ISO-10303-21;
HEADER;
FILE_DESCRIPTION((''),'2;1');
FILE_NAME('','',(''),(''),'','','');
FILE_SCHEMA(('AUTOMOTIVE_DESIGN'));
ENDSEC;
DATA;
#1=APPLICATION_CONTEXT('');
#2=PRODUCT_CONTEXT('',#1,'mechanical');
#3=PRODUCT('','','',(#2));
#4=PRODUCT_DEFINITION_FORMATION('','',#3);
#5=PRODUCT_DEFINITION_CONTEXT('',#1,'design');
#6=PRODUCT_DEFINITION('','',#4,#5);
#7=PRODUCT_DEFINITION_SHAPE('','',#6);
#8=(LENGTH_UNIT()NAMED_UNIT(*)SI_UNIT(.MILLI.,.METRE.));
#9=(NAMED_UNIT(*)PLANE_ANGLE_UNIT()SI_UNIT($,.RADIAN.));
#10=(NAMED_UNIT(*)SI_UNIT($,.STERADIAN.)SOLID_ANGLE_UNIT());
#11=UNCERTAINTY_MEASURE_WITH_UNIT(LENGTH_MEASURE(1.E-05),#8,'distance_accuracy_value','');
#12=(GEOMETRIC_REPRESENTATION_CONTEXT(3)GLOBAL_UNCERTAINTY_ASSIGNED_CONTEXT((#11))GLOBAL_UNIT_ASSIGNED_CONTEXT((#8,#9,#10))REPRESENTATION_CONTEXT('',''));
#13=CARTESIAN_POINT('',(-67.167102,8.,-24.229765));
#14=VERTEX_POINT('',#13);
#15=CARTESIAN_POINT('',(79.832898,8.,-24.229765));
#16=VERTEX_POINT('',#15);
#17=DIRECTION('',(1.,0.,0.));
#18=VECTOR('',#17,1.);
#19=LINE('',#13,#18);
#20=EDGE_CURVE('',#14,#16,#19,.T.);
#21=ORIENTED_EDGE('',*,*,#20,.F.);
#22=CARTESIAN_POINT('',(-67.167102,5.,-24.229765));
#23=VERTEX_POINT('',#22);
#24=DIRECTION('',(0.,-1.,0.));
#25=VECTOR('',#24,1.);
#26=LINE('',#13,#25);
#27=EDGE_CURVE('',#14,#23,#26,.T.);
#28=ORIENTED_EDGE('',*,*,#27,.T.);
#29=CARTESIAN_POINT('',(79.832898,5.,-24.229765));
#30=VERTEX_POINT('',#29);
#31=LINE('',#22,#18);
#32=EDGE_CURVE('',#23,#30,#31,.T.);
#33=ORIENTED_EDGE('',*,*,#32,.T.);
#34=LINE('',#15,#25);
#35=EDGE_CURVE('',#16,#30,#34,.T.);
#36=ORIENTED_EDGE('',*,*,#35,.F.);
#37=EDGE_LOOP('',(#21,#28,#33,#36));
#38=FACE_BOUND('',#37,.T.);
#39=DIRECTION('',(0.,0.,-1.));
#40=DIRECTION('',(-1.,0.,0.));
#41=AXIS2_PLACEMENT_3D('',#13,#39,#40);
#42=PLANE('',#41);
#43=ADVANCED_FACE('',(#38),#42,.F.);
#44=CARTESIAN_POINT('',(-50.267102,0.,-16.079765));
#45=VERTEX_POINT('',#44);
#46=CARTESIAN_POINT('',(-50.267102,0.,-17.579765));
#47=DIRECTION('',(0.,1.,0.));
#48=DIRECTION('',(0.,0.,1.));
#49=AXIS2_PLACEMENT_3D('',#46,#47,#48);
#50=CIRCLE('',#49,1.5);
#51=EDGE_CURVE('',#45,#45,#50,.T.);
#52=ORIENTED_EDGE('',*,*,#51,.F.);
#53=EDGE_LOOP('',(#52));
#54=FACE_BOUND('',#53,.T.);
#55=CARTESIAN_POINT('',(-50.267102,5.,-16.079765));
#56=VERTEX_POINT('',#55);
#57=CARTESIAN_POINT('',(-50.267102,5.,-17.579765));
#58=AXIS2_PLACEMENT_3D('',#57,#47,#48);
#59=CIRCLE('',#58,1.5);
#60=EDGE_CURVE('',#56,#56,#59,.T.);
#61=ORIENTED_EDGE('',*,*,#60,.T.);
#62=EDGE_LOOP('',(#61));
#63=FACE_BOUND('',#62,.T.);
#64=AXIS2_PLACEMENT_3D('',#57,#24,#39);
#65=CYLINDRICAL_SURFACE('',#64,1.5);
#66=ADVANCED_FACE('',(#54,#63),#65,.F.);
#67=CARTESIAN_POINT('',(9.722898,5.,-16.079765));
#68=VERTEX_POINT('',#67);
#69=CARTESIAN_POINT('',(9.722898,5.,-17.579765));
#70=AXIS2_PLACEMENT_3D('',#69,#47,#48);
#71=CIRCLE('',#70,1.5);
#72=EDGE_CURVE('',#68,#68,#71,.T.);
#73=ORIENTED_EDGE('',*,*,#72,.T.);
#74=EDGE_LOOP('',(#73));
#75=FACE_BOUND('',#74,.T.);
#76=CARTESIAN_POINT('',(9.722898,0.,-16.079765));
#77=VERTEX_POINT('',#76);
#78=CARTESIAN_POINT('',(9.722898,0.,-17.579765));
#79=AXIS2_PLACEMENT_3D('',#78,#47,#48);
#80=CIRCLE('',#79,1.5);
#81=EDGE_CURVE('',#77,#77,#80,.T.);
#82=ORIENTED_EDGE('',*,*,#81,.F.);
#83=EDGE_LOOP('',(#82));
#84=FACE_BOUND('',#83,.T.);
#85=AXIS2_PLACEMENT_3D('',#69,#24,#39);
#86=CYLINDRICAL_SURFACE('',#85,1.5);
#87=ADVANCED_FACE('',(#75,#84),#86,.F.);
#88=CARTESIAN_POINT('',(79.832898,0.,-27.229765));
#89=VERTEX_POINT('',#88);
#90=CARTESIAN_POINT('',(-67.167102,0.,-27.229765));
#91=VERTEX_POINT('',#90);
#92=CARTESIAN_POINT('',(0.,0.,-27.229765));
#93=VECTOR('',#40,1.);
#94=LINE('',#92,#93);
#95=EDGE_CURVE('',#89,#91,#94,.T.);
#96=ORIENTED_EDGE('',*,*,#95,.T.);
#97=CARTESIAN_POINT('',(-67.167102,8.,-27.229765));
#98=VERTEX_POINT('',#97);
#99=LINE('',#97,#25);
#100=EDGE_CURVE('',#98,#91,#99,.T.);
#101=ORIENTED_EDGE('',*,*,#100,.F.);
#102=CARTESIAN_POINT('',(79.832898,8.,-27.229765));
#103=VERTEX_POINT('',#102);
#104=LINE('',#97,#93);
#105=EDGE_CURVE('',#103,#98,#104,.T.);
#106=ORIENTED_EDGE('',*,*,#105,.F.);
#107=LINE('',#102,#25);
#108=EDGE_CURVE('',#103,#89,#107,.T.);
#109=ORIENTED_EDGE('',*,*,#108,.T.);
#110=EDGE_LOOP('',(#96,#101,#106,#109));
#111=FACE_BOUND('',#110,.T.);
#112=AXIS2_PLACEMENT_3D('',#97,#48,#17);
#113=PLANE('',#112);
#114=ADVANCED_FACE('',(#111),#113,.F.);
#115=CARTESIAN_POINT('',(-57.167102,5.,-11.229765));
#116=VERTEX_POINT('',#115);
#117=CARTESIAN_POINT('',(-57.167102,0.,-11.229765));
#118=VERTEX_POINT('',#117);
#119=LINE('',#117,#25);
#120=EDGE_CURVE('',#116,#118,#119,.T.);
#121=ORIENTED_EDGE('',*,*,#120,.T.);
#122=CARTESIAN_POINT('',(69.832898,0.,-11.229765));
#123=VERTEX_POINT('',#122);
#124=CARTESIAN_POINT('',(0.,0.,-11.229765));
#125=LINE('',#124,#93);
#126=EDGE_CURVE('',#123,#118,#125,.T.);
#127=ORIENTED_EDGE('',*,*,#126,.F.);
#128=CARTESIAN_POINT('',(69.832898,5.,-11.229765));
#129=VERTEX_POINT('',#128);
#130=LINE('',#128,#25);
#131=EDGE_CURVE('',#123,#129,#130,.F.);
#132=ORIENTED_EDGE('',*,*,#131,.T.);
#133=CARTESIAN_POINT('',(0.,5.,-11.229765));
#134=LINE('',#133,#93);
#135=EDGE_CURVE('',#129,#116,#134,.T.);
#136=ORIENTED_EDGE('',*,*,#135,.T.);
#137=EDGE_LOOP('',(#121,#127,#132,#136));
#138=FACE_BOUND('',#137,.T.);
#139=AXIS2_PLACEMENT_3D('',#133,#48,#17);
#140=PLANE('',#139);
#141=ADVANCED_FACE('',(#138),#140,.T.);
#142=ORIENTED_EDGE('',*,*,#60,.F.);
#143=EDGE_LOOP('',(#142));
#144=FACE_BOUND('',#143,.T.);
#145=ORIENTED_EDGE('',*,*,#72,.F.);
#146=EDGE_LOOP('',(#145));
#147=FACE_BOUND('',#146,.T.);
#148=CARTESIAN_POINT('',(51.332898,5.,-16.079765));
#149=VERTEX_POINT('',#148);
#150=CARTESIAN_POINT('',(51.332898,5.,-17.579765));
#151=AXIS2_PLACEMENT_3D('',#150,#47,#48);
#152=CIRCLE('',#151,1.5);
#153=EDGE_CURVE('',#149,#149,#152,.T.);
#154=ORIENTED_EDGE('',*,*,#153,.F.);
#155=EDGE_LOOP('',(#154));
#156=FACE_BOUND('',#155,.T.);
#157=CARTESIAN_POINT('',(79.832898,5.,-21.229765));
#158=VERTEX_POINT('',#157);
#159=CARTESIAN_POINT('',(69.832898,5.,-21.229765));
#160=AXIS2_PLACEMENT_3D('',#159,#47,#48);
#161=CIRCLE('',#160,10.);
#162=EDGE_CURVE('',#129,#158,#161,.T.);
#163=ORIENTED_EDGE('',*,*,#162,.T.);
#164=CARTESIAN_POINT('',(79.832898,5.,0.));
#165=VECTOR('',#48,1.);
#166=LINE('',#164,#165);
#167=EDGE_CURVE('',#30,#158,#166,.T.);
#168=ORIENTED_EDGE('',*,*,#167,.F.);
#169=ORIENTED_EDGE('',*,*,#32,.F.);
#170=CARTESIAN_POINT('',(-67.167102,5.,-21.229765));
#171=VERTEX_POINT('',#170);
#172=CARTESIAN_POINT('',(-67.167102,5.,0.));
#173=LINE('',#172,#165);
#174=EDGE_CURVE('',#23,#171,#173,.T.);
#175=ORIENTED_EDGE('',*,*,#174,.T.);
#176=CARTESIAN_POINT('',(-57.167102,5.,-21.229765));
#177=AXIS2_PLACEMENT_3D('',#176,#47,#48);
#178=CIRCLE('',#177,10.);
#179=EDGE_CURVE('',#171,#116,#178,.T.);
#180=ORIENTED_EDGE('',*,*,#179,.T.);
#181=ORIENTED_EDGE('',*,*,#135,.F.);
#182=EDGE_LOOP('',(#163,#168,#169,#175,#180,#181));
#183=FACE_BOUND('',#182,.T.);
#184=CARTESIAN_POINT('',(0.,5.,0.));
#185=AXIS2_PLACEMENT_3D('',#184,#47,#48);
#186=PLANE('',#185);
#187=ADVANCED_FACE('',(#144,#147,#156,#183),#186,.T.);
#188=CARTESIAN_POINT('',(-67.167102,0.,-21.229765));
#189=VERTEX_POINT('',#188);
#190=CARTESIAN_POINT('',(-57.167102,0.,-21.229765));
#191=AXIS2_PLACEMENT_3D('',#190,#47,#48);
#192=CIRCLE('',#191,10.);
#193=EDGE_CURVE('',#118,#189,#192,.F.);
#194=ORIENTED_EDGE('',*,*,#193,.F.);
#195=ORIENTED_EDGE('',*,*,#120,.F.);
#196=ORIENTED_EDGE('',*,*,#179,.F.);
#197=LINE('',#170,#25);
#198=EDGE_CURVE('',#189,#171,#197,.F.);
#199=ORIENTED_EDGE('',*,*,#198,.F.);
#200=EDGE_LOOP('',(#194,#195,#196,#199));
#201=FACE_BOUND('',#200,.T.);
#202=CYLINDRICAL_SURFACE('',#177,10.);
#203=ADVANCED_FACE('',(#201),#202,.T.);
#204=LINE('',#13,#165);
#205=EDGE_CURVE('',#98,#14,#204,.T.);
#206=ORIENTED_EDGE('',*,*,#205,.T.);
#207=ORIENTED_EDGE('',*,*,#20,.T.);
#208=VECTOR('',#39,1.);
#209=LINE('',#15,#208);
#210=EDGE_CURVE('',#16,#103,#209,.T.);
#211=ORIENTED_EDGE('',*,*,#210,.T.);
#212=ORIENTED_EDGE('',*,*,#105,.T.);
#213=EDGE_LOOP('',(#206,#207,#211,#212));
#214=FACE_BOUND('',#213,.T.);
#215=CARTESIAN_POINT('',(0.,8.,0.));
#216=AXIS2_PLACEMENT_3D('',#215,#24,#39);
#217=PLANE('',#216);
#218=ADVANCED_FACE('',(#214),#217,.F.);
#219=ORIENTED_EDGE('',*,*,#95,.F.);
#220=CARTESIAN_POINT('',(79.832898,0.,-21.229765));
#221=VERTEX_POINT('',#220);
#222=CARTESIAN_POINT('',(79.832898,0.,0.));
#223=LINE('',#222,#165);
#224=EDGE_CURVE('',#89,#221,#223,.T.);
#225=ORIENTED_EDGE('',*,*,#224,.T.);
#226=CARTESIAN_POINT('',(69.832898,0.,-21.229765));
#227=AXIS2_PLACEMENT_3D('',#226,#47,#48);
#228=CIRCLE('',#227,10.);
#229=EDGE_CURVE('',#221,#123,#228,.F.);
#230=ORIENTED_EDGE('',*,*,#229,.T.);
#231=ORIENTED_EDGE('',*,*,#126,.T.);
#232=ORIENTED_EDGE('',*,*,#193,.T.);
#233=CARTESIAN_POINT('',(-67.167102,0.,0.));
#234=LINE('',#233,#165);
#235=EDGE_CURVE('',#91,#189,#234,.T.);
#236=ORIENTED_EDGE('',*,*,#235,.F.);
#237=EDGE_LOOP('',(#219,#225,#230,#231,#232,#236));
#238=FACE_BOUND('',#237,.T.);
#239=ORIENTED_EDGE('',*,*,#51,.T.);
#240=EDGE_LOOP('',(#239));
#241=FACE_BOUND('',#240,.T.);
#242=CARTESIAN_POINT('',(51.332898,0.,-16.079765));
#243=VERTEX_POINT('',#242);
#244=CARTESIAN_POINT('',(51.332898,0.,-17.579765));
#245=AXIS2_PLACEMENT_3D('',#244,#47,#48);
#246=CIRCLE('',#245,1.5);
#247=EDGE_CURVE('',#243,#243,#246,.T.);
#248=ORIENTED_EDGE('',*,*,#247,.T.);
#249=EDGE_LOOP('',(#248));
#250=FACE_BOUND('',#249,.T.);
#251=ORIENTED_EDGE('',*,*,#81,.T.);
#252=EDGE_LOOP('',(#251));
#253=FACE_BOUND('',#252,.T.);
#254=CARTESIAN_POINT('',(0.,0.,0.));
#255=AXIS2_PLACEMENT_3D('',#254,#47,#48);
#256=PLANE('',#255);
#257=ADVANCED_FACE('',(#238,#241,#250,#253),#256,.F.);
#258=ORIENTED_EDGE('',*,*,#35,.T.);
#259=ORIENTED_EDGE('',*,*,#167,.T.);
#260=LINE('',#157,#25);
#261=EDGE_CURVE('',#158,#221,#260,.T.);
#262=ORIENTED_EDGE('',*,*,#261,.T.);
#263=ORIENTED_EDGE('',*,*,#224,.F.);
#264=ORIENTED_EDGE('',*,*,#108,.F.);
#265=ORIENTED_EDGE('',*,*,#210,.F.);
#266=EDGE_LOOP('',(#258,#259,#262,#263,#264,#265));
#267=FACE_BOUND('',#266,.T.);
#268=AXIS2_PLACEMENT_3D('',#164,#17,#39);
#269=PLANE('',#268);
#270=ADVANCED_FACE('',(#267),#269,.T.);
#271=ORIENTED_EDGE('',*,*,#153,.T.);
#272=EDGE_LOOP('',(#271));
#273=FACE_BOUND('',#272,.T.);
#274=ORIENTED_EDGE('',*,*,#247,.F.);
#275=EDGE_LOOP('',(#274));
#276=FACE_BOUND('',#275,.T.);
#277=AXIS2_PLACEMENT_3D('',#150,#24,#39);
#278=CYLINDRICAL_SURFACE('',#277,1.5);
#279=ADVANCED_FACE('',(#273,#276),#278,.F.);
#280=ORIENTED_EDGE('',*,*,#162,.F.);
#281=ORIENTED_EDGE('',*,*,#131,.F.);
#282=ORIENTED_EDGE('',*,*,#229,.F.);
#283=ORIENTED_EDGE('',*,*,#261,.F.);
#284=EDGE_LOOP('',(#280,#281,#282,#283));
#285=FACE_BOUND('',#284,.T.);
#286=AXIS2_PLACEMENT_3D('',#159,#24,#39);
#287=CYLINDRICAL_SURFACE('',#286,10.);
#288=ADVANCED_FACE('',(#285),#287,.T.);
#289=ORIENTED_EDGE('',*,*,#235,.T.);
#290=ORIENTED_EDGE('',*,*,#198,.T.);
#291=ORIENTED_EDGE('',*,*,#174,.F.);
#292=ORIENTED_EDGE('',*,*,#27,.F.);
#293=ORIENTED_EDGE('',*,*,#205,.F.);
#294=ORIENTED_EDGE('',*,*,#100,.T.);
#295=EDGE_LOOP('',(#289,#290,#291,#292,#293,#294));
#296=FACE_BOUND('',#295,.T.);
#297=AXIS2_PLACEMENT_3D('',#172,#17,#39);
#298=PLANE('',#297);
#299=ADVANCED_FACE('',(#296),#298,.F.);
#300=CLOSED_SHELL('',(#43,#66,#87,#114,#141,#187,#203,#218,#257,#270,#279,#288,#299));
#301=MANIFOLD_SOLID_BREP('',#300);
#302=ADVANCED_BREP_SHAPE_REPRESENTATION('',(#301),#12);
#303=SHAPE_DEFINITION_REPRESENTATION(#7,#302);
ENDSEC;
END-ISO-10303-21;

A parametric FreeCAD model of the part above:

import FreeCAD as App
import Part
import Sketcher

V = App.Vector
Q = App.Units.Quantity


def edges_at(feature, points):
    """Names of the edges that pass closest to the given points."""
    edges = feature.Shape.Edges
    near = lambda p: min(range(len(edges)), key=lambda i: edges[i].distToShape(Part.Vertex(*p))[0])
    return sorted({f"Edge{near(p) + 1}" for p in points})


def add_polygon(sketch, points):
    """Adds a closed chain of lines whose ends are joined by coincident constraints."""
    first, n = sketch.GeometryCount, len(points)
    for a, b in zip(points, points[1:] + points[:1]):
        sketch.addGeometry(Part.LineSegment(App.Vector(*a, 0), App.Vector(*b, 0)), False)
    for i in range(n):
        sketch.addConstraint(Sketcher.Constraint("Coincident", first + i, 2, first + (i + 1) % n, 1))

doc = App.newDocument("Part")
body = doc.addObject("PartDesign::Body", "Body")

sketch1 = body.newObject("Sketcher::SketchObject", "Sketch")
sketch1.AttachmentSupport = (doc.getObject("XZ_Plane"), [""])
sketch1.MapMode = "FlatFace"
add_polygon(sketch1, [(-67.167102, -11.229765), (79.832898, -11.229765), (79.832898, -37.229765), (-67.167102, -37.229765)])
sketch1.addGeometry(Part.Circle(V(51.332898, -17.579765, 0), V(0, 0, 1), 1.5), False)
sketch1.addGeometry(Part.Circle(V(9.722898, -17.579765, 0), V(0, 0, 1), 1.5), False)
sketch1.addGeometry(Part.Circle(V(-50.267102, -17.579765, 0), V(0, 0, 1), 1.5), False)
sketch1.addConstraint(Sketcher.Constraint("Horizontal", 0))
sketch1.addConstraint(Sketcher.Constraint("Vertical", 1))
sketch1.addConstraint(Sketcher.Constraint("Horizontal", 2))
sketch1.addConstraint(Sketcher.Constraint("Vertical", 3))
sketch1.addConstraint(Sketcher.Constraint("Equal", 4, 5))
sketch1.addConstraint(Sketcher.Constraint("Equal", 5, 6))
sketch1.addConstraint(Sketcher.Constraint("Horizontal", 4, 3, 5, 3))
sketch1.addConstraint(Sketcher.Constraint("Horizontal", 5, 3, 6, 3))
sketch1.addConstraint(Sketcher.Constraint("Diameter", 4, Q("3 mm")))
sketch1.addConstraint(Sketcher.Constraint("DistanceX", 0, 1, 0, 2, Q("147 mm")))
sketch1.addConstraint(Sketcher.Constraint("DistanceY", 1, 2, 1, 1, Q("26 mm")))
sketch1.addConstraint(Sketcher.Constraint("DistanceX", 6, 3, 4, 3, Q("101.6 mm")))
sketch1.addConstraint(Sketcher.Constraint("DistanceX", 4, 3, 0, 2, Q("28.5 mm")))
sketch1.addConstraint(Sketcher.Constraint("DistanceX", 5, 3, 4, 3, Q("41.61 mm")))
sketch1.addConstraint(Sketcher.Constraint("DistanceY", 4, 3, 0, 2, Q("6.35 mm")))
sketch1.addConstraint(Sketcher.Constraint("DistanceX", -1, 1, 4, 3, Q("51.332898 mm")))
sketch1.addConstraint(Sketcher.Constraint("DistanceY", 4, 3, -1, 1, Q("17.579765 mm")))
pad1 = body.newObject("PartDesign::Pad", "Pad")
pad1.Profile = sketch1
pad1.Length = 5
pad1.Reversed = True

sketch2 = body.newObject("Sketcher::SketchObject", "Sketch001")
sketch2.AttachmentSupport = (doc.getObject("XZ_Plane"), [""])
sketch2.MapMode = "FlatFace"
sketch2.AttachmentOffset = App.Placement(V(0, 0, -5), App.Rotation())
add_polygon(sketch2, [(-67.167102, -27.229765), (-67.167102, -24.229765), (79.832898, -24.229765), (79.832898, -27.229765)])
sketch2.addConstraint(Sketcher.Constraint("Vertical", 0))
sketch2.addConstraint(Sketcher.Constraint("Horizontal", 1))
sketch2.addConstraint(Sketcher.Constraint("Vertical", 2))
sketch2.addConstraint(Sketcher.Constraint("Horizontal", 3))
sketch2.addConstraint(Sketcher.Constraint("DistanceX", 1, 1, 1, 2, Q("147 mm")))
sketch2.addConstraint(Sketcher.Constraint("DistanceY", 0, 1, 0, 2, Q("3 mm")))
sketch2.addConstraint(Sketcher.Constraint("DistanceX", 0, 2, -1, 1, Q("67.167102 mm")))
sketch2.addConstraint(Sketcher.Constraint("DistanceY", 0, 2, -1, 1, Q("24.229765 mm")))
pad2 = body.newObject("PartDesign::Pad", "Pad001")
pad2.Profile = sketch2
pad2.Length = 3
pad2.Reversed = True
doc.recompute()

fillet = body.newObject("PartDesign::Fillet", "Fillet")
fillet.Base = (pad2, edges_at(pad2, [(-67.167, 2.5, -37.23), (-67.167, 2.5, -11.23)]))
fillet.Radius = 10
doc.recompute()

fillet2 = body.newObject("PartDesign::Fillet", "Fillet001")
fillet2.Base = (fillet, edges_at(fillet, [(79.833, 2.5, -37.23), (79.833, 2.5, -11.23)]))
fillet2.Radius = 10

sketch3 = body.newObject("Sketcher::SketchObject", "Sketch002")
sketch3.AttachmentSupport = (doc.getObject("XY_Plane"), [""])
sketch3.MapMode = "FlatFace"
sketch3.AttachmentOffset = App.Placement(V(0, 0, -37.229765), App.Rotation())
add_polygon(sketch3, [(95.497505, 30.769849), (95.497505, -41.956075), (-98.771251, -41.956075), (-98.771251, 30.769849)])
sketch3.addConstraint(Sketcher.Constraint("Vertical", 0))
sketch3.addConstraint(Sketcher.Constraint("Horizontal", 1))
sketch3.addConstraint(Sketcher.Constraint("Vertical", 2))
sketch3.addConstraint(Sketcher.Constraint("Horizontal", 3))
sketch3.addConstraint(Sketcher.Constraint("DistanceX", 1, 2, 1, 1, Q("194.268756 mm")))
sketch3.addConstraint(Sketcher.Constraint("DistanceY", 0, 2, 0, 1, Q("72.725924 mm")))
sketch3.addConstraint(Sketcher.Constraint("DistanceX", 1, 2, -1, 1, Q("98.771251 mm")))
sketch3.addConstraint(Sketcher.Constraint("DistanceY", -1, 1, 2, 2, Q("30.769849 mm")))
pocket1 = body.newObject("PartDesign::Pocket", "Pocket")
pocket1.Profile = sketch3
pocket1.Length = 10
pocket1.Reversed = True

doc.recompute()
